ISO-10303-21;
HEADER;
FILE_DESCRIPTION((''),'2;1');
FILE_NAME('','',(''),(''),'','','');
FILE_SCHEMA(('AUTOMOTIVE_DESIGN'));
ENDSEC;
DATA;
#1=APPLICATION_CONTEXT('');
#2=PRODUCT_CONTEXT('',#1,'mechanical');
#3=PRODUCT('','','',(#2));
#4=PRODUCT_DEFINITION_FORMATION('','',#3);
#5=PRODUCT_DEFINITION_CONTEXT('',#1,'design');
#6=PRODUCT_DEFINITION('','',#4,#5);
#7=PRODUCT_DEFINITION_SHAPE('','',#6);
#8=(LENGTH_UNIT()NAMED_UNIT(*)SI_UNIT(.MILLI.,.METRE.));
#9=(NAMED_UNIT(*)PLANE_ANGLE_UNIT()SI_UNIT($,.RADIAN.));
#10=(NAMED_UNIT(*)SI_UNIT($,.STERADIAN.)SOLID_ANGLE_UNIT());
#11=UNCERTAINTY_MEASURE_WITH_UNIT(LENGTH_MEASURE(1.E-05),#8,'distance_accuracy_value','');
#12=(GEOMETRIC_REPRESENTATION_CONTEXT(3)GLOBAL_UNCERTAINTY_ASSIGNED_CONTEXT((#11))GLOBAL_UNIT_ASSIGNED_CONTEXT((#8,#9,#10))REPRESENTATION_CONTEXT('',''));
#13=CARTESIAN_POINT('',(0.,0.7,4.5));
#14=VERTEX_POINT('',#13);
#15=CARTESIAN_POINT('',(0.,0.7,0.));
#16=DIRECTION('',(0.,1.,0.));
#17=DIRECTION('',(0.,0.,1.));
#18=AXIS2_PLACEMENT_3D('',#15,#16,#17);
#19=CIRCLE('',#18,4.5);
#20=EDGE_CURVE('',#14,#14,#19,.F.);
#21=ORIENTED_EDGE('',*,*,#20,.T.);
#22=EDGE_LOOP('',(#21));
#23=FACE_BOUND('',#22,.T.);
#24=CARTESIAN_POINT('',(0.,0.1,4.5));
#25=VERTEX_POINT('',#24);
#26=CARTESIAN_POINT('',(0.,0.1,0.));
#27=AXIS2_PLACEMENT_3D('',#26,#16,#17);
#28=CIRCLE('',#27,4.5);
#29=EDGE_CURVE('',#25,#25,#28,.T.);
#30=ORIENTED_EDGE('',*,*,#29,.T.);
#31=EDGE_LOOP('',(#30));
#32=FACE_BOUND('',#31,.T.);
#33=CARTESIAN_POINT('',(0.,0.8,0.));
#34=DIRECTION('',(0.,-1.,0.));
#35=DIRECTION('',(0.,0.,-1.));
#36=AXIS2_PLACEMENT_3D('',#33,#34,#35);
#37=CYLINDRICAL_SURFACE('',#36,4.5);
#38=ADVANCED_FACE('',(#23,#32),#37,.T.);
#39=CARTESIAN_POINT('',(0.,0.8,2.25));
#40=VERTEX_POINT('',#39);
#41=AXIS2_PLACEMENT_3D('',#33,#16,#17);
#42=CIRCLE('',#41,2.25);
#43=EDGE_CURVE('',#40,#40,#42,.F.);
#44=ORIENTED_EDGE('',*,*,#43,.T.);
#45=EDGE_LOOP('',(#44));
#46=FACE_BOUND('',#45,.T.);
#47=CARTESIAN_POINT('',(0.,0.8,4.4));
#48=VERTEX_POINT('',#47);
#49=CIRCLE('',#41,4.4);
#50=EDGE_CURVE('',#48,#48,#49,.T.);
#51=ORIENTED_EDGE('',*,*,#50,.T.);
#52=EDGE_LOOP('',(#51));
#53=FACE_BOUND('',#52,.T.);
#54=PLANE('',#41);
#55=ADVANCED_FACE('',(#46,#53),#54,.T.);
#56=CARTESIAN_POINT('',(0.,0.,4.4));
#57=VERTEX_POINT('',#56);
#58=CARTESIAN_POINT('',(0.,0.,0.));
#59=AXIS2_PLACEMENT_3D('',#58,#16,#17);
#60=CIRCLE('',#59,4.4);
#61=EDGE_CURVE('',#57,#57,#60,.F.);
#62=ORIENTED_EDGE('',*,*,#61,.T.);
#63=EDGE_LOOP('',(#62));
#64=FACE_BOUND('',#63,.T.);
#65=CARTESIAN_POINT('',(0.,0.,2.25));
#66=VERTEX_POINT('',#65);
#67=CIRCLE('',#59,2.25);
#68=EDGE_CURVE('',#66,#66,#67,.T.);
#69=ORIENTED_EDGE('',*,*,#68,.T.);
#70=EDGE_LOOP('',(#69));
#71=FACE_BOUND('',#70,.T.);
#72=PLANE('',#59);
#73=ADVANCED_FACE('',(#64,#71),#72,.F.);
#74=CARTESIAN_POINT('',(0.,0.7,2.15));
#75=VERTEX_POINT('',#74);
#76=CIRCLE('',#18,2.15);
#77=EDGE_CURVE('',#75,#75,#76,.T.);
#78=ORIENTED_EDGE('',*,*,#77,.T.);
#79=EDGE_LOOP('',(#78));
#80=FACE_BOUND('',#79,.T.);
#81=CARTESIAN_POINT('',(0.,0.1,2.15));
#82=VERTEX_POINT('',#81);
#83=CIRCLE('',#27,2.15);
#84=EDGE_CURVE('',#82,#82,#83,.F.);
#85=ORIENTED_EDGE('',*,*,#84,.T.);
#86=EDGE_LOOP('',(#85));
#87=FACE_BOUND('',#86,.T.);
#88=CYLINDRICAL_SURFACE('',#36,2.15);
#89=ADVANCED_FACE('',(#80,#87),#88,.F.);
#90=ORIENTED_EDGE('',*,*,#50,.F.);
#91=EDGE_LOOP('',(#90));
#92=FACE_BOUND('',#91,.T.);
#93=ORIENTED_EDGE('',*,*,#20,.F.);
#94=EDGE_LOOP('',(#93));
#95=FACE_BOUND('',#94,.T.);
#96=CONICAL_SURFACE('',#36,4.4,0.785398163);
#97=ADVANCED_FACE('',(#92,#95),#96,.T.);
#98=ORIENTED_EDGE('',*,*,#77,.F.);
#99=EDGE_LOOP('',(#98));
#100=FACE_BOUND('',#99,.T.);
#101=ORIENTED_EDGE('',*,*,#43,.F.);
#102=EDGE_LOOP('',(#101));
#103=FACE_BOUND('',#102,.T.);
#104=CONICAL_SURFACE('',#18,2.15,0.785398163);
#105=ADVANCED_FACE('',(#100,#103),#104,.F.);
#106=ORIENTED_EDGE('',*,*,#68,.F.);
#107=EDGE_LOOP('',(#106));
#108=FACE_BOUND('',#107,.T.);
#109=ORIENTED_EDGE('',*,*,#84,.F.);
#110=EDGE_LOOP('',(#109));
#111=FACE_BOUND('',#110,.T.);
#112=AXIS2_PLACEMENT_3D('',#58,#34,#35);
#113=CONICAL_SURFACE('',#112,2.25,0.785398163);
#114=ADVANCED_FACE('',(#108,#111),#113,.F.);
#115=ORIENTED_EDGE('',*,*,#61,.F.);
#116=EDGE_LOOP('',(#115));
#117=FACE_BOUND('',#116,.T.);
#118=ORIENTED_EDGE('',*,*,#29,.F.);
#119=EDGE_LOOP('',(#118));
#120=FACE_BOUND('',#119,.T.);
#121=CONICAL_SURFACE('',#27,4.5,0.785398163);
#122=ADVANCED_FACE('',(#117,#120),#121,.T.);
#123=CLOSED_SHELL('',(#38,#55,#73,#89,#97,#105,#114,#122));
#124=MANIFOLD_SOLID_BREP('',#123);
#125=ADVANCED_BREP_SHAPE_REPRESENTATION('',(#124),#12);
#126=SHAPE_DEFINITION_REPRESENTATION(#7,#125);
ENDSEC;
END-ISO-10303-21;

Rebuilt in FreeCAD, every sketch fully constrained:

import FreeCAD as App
import Part
import Sketcher
from FreeCAD import Vector


def edges_at(feature, points):
    """Names of the edges that pass closest to the given points."""
    edges = feature.Shape.Edges
    near = lambda p: min(range(len(edges)), key=lambda i: edges[i].distToShape(Part.Vertex(*p))[0])
    return sorted({f"Edge{near(p) + 1}" for p in points})

doc = App.newDocument("Part")
body = doc.addObject("PartDesign::Body", "Body")

sketch1 = doc.addObject("Sketcher::SketchObject", "Sketch")
body.addObject(sketch1)
sketch1.AttachmentSupport = (doc.XZ_Plane, [""])
sketch1.MapMode = "FlatFace"
sketch1.addGeometry([
    Part.Circle(Vector(0, 0, 0), Vector(0, 0, 1), 4.5),
    Part.Circle(Vector(0, 0, 0), Vector(0, 0, 1), 2.1),
], False)
sketch1.addConstraint([
    Sketcher.Constraint("Coincident", 0, 3, -1, 1),
    Sketcher.Constraint("Coincident", 1, 3, -1, 1),
    Sketcher.Constraint("Diameter", 0, 9.0),
    Sketcher.Constraint("Diameter", 1, 4.3),
])
pad1 = doc.addObject("PartDesign::Pad", "Pad")
body.addObject(pad1)
pad1.Profile = sketch1
pad1.Length = 0.8
pad1.Reversed = True
doc.recompute()

chamfer = doc.addObject("PartDesign::Chamfer", "Chamfer")
body.addObject(chamfer)
chamfer.Base = (pad1, edges_at(pad1, [
    (0, 0, -4.5),
    (0, 0.8, -4.5),
    (0, 0, -2.15),
    (0, 0.8, -2.15),
]))
chamfer.Size = 0.1

doc.recompute()
